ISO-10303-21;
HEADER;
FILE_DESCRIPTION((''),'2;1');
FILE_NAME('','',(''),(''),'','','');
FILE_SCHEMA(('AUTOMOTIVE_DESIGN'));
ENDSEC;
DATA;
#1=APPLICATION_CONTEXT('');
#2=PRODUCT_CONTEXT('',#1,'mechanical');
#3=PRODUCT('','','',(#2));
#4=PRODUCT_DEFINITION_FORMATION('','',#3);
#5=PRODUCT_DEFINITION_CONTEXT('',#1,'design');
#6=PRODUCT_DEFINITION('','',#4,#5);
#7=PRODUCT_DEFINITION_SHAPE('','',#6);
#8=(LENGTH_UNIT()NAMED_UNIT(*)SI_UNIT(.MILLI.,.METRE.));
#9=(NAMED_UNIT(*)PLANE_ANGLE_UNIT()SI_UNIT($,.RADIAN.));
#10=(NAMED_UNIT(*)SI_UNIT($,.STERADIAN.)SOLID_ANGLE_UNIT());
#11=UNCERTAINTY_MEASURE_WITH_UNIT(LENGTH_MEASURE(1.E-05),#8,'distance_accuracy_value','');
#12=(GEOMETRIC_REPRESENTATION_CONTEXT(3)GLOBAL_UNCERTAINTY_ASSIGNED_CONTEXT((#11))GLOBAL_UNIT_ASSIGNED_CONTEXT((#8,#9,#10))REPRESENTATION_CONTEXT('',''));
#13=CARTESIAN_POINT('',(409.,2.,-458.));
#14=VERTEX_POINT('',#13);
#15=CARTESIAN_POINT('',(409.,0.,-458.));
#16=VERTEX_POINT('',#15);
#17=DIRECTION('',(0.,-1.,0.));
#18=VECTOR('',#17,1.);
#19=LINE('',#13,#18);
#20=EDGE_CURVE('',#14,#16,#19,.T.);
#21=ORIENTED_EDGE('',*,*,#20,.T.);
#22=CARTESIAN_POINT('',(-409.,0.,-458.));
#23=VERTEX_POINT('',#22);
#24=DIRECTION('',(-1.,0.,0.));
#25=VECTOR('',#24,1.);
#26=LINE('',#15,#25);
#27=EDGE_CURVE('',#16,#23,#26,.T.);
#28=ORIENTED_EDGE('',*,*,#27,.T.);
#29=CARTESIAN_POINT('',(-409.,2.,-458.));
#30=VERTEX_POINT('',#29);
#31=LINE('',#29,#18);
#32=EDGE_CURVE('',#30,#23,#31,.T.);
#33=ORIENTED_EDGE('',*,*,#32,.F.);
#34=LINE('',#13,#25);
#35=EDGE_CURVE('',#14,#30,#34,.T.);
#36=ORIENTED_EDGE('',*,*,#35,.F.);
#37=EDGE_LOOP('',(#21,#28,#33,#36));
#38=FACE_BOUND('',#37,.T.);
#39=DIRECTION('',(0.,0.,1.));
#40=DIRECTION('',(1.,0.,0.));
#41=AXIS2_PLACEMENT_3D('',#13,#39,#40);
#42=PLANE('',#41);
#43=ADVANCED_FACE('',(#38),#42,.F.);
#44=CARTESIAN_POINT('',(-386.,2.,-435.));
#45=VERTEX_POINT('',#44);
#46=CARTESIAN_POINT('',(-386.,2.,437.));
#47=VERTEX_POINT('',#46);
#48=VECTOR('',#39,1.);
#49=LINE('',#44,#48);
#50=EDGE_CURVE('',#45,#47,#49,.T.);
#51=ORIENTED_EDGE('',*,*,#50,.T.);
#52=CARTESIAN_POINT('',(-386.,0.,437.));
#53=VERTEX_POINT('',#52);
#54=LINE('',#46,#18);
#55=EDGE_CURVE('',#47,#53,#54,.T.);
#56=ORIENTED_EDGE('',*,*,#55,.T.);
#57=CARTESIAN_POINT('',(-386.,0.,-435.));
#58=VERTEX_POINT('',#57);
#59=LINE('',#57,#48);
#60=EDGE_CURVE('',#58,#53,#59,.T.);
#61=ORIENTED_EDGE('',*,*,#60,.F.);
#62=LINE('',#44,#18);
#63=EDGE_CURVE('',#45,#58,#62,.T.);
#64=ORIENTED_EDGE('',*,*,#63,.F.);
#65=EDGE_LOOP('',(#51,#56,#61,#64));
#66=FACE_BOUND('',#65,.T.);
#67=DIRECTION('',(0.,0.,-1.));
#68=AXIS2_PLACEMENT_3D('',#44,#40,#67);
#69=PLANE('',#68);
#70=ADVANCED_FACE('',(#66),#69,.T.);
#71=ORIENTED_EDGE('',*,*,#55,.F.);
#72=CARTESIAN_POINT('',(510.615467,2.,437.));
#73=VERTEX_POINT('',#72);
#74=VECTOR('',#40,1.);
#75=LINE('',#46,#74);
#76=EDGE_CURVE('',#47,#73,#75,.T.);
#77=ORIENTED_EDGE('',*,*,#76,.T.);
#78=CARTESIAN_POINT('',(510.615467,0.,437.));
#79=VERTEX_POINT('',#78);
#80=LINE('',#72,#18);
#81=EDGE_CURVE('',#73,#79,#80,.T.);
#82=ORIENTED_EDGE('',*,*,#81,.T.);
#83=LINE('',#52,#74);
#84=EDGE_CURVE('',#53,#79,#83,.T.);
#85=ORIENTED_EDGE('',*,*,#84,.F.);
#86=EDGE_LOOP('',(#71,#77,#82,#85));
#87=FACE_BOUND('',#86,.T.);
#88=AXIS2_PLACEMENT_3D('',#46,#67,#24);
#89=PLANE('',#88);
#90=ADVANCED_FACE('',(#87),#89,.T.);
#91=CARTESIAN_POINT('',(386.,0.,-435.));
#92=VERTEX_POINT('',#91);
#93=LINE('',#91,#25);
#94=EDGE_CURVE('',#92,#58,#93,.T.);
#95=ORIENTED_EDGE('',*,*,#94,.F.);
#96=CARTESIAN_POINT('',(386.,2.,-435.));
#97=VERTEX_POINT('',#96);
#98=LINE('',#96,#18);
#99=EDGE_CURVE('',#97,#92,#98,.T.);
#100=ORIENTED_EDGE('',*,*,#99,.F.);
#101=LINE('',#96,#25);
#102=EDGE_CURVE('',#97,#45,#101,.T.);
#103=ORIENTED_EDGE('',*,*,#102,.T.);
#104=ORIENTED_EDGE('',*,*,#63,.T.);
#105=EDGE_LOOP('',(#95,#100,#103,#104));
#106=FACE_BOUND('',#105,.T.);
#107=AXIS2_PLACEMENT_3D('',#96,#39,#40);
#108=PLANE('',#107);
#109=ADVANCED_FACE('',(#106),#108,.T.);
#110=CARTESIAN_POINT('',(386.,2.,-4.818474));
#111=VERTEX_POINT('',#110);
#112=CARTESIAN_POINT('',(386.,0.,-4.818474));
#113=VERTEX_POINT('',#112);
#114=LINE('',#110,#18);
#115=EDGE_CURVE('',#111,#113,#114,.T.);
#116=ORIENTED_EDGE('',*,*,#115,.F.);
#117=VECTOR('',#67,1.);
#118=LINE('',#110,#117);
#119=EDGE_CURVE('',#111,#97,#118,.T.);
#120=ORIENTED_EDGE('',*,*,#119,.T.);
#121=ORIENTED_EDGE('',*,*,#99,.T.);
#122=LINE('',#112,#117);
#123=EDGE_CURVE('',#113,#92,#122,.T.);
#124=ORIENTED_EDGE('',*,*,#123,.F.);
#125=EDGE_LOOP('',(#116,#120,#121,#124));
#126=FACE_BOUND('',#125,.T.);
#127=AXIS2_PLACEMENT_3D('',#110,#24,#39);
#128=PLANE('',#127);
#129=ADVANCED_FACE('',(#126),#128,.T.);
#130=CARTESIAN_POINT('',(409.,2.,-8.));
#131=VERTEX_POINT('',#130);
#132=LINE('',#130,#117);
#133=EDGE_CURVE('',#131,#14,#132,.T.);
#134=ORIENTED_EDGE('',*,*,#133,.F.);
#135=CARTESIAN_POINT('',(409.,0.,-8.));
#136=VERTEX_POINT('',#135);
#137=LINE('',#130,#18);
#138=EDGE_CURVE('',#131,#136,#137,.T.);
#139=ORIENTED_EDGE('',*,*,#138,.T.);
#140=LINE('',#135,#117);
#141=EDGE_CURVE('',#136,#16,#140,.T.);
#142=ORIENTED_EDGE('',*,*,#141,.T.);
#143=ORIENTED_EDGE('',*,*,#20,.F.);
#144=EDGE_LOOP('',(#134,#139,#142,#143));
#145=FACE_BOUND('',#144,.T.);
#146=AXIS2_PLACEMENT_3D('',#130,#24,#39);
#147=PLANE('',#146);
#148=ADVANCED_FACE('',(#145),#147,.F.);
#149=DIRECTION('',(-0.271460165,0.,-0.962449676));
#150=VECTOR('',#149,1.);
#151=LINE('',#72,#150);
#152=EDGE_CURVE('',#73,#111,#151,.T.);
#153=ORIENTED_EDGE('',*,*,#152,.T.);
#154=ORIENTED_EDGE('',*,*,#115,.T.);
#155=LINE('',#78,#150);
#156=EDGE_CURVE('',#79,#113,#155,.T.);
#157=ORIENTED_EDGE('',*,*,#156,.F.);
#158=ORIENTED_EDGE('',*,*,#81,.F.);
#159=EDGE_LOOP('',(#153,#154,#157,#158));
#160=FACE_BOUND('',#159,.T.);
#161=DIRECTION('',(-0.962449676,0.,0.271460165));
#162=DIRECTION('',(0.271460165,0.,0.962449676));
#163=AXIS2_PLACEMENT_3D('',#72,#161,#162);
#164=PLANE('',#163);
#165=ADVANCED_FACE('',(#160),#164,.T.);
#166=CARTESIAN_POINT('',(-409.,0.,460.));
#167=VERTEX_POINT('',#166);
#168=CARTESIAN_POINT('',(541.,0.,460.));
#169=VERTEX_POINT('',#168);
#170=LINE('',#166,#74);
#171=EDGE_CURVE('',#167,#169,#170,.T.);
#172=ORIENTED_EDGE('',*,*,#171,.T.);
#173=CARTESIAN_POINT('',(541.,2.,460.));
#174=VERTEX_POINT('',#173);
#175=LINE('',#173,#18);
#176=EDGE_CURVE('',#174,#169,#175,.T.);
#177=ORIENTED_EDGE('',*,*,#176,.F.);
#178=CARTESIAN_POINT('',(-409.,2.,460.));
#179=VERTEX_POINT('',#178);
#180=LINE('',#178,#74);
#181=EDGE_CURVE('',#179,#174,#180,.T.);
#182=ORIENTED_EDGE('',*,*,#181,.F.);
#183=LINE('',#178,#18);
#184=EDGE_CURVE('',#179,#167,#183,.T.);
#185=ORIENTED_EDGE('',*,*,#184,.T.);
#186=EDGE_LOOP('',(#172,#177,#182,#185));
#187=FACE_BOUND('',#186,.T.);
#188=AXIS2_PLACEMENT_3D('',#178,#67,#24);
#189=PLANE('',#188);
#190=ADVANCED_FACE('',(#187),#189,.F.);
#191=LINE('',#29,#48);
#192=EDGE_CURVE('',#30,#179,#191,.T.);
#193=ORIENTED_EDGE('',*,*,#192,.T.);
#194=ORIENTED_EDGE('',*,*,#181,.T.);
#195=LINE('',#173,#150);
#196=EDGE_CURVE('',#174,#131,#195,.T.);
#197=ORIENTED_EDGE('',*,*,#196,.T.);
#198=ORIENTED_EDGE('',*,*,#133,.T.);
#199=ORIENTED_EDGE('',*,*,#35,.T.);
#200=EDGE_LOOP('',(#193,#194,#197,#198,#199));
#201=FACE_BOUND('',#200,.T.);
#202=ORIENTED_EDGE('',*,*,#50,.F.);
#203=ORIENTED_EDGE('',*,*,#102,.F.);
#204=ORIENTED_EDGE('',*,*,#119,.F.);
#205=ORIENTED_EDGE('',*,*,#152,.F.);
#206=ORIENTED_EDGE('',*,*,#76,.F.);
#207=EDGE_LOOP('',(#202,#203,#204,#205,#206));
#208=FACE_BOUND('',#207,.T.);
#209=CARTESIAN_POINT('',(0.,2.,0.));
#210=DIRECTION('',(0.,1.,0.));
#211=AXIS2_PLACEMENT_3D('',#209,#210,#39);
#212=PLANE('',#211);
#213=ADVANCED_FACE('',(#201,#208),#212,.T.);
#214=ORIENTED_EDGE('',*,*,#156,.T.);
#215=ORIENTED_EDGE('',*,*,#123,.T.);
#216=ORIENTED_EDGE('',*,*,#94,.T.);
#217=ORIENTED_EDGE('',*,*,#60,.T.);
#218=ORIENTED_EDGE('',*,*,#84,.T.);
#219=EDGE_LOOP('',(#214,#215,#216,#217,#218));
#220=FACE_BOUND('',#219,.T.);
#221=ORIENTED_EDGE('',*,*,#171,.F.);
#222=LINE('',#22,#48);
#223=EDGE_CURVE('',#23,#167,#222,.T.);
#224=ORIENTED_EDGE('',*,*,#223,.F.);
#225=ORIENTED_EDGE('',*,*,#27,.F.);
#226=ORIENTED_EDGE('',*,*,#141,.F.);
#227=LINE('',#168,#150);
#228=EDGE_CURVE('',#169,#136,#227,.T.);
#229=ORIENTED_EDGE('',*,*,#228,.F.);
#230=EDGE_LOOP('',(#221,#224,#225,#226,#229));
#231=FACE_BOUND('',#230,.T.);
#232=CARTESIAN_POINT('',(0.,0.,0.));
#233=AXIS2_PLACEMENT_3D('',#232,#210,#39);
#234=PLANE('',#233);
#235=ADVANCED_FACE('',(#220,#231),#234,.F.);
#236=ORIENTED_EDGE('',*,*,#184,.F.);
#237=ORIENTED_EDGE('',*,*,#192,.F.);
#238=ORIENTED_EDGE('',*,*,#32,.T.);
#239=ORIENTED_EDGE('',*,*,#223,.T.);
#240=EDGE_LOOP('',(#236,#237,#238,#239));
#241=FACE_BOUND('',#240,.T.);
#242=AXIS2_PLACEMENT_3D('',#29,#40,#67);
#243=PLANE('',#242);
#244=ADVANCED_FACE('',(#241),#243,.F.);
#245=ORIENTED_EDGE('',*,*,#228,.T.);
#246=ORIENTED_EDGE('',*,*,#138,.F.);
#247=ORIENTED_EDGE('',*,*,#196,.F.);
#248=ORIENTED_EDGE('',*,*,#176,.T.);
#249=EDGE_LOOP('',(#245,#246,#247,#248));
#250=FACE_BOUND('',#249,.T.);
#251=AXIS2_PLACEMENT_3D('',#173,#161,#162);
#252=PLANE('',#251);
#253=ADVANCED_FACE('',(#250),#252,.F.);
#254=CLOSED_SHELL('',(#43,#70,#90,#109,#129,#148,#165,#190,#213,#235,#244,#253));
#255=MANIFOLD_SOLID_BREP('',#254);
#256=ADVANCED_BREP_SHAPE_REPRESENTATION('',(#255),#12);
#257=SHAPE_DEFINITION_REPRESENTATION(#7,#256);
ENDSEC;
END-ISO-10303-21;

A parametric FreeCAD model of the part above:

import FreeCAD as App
import Part
import Sketcher

doc = App.newDocument("Part")
body = doc.addObject("PartDesign::Body", "Body")

# Sketch on XZ plane
sketch1 = body.newObject("Sketcher::SketchObject", "Sketch")
sketch1.AttachmentSupport = (doc.getObject("XZ_Plane"), [""])
sketch1.MapMode = "FlatFace"
sketch1.addGeometry(Part.LineSegment(App.Vector(-409, -458, 0), App.Vector(-409, 460, 0)), False)
sketch1.addGeometry(Part.LineSegment(App.Vector(-409, 460, 0), App.Vector(541, 460, 0)), False)
sketch1.addGeometry(Part.LineSegment(App.Vector(541, 460, 0), App.Vector(409, -8, 0)), False)
sketch1.addGeometry(Part.LineSegment(App.Vector(409, -8, 0), App.Vector(409, -458, 0)), False)
sketch1.addGeometry(Part.LineSegment(App.Vector(409, -458, 0), App.Vector(-409, -458, 0)), False)
sketch1.addGeometry(Part.LineSegment(App.Vector(-386, -435, 0), App.Vector(386, -435, 0)), False)
sketch1.addGeometry(Part.LineSegment(App.Vector(386, -435, 0), App.Vector(386, -4.818474, 0)), False)
sketch1.addGeometry(Part.LineSegment(App.Vector(386, -4.818474, 0), App.Vector(510.615467, 437, 0)), False)
sketch1.addGeometry(Part.LineSegment(App.Vector(510.615467, 437, 0), App.Vector(-386, 437, 0)), False)
sketch1.addGeometry(Part.LineSegment(App.Vector(-386, 437, 0), App.Vector(-386, -435, 0)), False)
sketch1.addConstraint(Sketcher.Constraint("Coincident", 0, 2, 1, 1))
sketch1.addConstraint(Sketcher.Constraint("Coincident", 1, 2, 2, 1))
sketch1.addConstraint(Sketcher.Constraint("Coincident", 2, 2, 3, 1))
sketch1.addConstraint(Sketcher.Constraint("Coincident", 3, 2, 4, 1))
sketch1.addConstraint(Sketcher.Constraint("Coincident", 4, 2, 0, 1))
sketch1.addConstraint(Sketcher.Constraint("Coincident", 5, 2, 6, 1))
sketch1.addConstraint(Sketcher.Constraint("Coincident", 6, 2, 7, 1))
sketch1.addConstraint(Sketcher.Constraint("Coincident", 7, 2, 8, 1))
sketch1.addConstraint(Sketcher.Constraint("Coincident", 8, 2, 9, 1))
sketch1.addConstraint(Sketcher.Constraint("Coincident", 9, 2, 5, 1))
sketch1.addConstraint(Sketcher.Constraint("Vertical", 0))
sketch1.addConstraint(Sketcher.Constraint("Horizontal", 1))
sketch1.addConstraint(Sketcher.Constraint("Vertical", 3))
sketch1.addConstraint(Sketcher.Constraint("Horizontal", 4))
sketch1.addConstraint(Sketcher.Constraint("Horizontal", 5))
sketch1.addConstraint(Sketcher.Constraint("Vertical", 6))
sketch1.addConstraint(Sketcher.Constraint("Horizontal", 8))
sketch1.addConstraint(Sketcher.Constraint("Vertical", 9))
sketch1.addConstraint(Sketcher.Constraint("Parallel", 2, 7))
sketch1.addConstraint(Sketcher.Constraint("DistanceX", 1, 1, 1, 2, 950.0))
sketch1.addConstraint(Sketcher.Constraint("DistanceX", 4, 2, 4, 1, 818.0))
sketch1.addConstraint(Sketcher.Constraint("DistanceX", 5, 1, 5, 2, 772.0))
sketch1.addConstraint(Sketcher.Constraint("DistanceY", 0, 1, 0, 2, 918.0))
sketch1.addConstraint(Sketcher.Constraint("DistanceY", 3, 2, 3, 1, 450.0))
sketch1.addConstraint(Sketcher.Constraint("DistanceY", 9, 2, 9, 1, 872.0))
sketch1.addConstraint(Sketcher.Constraint("DistanceX", 0, 2, -1, 1, 409.0))
sketch1.addConstraint(Sketcher.Constraint("DistanceY", -1, 1, 0, 2, 460.0))
sketch1.addConstraint(Sketcher.Constraint("DistanceX", -1, 1, 5, 2, 386.0))
sketch1.addConstraint(Sketcher.Constraint("DistanceY", 5, 2, -1, 1, 435.0))
sketch1.addConstraint(Sketcher.Constraint("DistanceX", 8, 2, 8, 1, 896.615467))
pad1 = body.newObject("PartDesign::Pad", "Pad")
pad1.Profile = sketch1
pad1.Length = 2
pad1.Reversed = True

doc.recompute()
